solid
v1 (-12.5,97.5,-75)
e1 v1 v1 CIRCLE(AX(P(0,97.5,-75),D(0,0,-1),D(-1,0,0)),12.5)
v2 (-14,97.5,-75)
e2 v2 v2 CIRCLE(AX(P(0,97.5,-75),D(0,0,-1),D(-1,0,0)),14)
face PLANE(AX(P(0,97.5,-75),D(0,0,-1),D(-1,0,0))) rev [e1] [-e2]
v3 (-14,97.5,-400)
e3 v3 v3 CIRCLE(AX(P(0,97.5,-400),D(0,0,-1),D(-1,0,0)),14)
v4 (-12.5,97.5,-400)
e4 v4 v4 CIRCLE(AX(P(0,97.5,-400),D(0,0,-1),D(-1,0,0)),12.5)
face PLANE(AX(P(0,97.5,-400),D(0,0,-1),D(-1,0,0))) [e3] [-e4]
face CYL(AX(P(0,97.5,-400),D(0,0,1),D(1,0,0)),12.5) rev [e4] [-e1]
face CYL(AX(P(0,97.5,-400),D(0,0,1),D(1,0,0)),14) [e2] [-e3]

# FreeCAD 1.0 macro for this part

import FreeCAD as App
import Part
import Sketcher
from FreeCAD import Vector
Q = App.Units.Quantity

doc = App.newDocument("Part")
body = doc.addObject("PartDesign::Body", "Body")

# Sketch on XY plane
sketch1 = body.newObject("Sketcher::SketchObject", "Sketch")
sketch1.AttachmentSupport = (doc.getObject("XY_Plane"), [""])
sketch1.MapMode = "FlatFace"
sketch1.AttachmentOffset = App.Placement(Vector(0, 0, -75), App.Rotation())
sketch1.addGeometry([
    Part.Circle(Vector(0, 98, 0), Vector(0, 0, 1), 14),
    Part.Circle(Vector(0, 98, 0), Vector(0, 0, 1), 12),
], False)
sketch1.addConstraint([
    Sketcher.Constraint("Coincident", 1, 3, 0, 3),
    Sketcher.Constraint("PointOnObject", 0, 3, -2),
    Sketcher.Constraint("Diameter", 0, Q("28 mm")),
    Sketcher.Constraint("Diameter", 1, Q("25 mm")),
    Sketcher.Constraint("DistanceY", -1, 1, 0, 3, Q("97.5 mm")),
])
pad1 = body.newObject("PartDesign::Pad", "Pad")
pad1.Profile = sketch1
pad1.Length = 325
pad1.Reversed = True

doc.recompute()
